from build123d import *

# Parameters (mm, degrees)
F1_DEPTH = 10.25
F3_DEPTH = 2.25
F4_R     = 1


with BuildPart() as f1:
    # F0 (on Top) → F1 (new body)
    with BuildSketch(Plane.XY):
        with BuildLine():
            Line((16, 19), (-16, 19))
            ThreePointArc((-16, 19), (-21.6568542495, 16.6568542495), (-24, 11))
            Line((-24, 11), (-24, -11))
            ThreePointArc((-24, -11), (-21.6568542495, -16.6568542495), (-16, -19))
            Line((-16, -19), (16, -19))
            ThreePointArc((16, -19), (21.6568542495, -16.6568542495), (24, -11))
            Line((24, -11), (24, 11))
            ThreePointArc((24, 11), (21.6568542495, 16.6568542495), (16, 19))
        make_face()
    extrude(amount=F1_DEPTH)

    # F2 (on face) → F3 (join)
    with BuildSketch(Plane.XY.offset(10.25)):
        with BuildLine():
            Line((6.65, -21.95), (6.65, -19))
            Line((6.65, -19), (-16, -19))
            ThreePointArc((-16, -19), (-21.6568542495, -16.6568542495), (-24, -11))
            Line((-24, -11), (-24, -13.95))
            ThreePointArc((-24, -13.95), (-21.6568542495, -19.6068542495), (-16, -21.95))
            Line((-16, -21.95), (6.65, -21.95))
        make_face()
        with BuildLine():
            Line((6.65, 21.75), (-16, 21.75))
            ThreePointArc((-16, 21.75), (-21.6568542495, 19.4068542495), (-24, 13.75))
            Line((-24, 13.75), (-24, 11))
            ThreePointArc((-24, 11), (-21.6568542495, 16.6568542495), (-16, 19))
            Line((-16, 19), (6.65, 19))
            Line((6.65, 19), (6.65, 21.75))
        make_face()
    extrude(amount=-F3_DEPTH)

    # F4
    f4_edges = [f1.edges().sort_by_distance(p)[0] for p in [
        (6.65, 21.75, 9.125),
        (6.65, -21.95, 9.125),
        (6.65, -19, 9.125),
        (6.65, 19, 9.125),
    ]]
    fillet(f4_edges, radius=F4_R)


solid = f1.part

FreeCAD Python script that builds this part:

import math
import FreeCAD as App
import Part
import Sketcher
from FreeCAD import Vector


def edges_at(feature, points):
    """Names of the edges that pass closest to the given points."""
    edges = feature.Shape.Edges
    near = lambda p: min(range(len(edges)), key=lambda i: edges[i].distToShape(Part.Vertex(*p))[0])
    return sorted({f"Edge{near(p) + 1}" for p in points})

doc = App.newDocument("Part")
body = doc.addObject("PartDesign::Body", "Body")

sketch1 = doc.addObject("Sketcher::SketchObject", "Sketch")
body.addObject(sketch1)
sketch1.AttachmentSupport = (doc.XY_Plane, [""])
sketch1.MapMode = "FlatFace"
sketch1.addGeometry(Part.LineSegment(Vector(16, 19, 0), Vector(-16, 19, 0)), False)
sketch1.addGeometry(Part.ArcOfCircle(Part.Circle(Vector(-16, 11, 0), Vector(0, 0, 1), 8), math.radians(90), math.radians(180)), False)
sketch1.addGeometry(Part.LineSegment(Vector(-24, 11, 0), Vector(-24, -11, 0)), False)
sketch1.addGeometry(Part.ArcOfCircle(Part.Circle(Vector(-16, -11, 0), Vector(0, 0, 1), 8), math.radians(180), math.radians(270)), False)
sketch1.addGeometry(Part.LineSegment(Vector(-16, -19, 0), Vector(16, -19, 0)), False)
sketch1.addGeometry(Part.ArcOfCircle(Part.Circle(Vector(16, -11, 0), Vector(0, 0, 1), 8), math.radians(-90), math.radians(0)), False)
sketch1.addGeometry(Part.LineSegment(Vector(24, -11, 0), Vector(24, 11, 0)), False)
sketch1.addGeometry(Part.ArcOfCircle(Part.Circle(Vector(16, 11, 0), Vector(0, 0, 1), 8), math.radians(0), math.radians(90)), False)
sketch1.addConstraint(Sketcher.Constraint("Tangent", 0, 2, 1, 1))
sketch1.addConstraint(Sketcher.Constraint("Tangent", 1, 2, 2, 1))
sketch1.addConstraint(Sketcher.Constraint("Tangent", 2, 2, 3, 1))
sketch1.addConstraint(Sketcher.Constraint("Tangent", 3, 2, 4, 1))
sketch1.addConstraint(Sketcher.Constraint("Tangent", 4, 2, 5, 1))
sketch1.addConstraint(Sketcher.Constraint("Tangent", 5, 2, 6, 1))
sketch1.addConstraint(Sketcher.Constraint("Tangent", 6, 2, 7, 1))
sketch1.addConstraint(Sketcher.Constraint("Tangent", 7, 2, 0, 1))
sketch1.addConstraint(Sketcher.Constraint("Horizontal", 0))
sketch1.addConstraint(Sketcher.Constraint("Vertical", 2))
sketch1.addConstraint(Sketcher.Constraint("Horizontal", 4))
sketch1.addConstraint(Sketcher.Constraint("Vertical", 6))
sketch1.addConstraint(Sketcher.Constraint("Equal", 1, 3))
sketch1.addConstraint(Sketcher.Constraint("Equal", 3, 5))
sketch1.addConstraint(Sketcher.Constraint("Equal", 5, 7))
sketch1.addConstraint(Sketcher.Constraint("Symmetric", 1, 3, 5, 3, -1, 1))
sketch1.addConstraint(Sketcher.Constraint("Radius", 1, 8.0))
sketch1.addConstraint(Sketcher.Constraint("DistanceX", 0, 2, 0, 1, 32.0))
sketch1.addConstraint(Sketcher.Constraint("DistanceY", 2, 2, 2, 1, 22.0))
pad1 = doc.addObject("PartDesign::Pad", "Pad")
body.addObject(pad1)
pad1.Profile = sketch1
pad1.Length = 10.25

sketch2 = doc.addObject("Sketcher::SketchObject", "Sketch001")
body.addObject(sketch2)
sketch2.AttachmentSupport = (doc.XY_Plane, [""])
sketch2.MapMode = "FlatFace"
sketch2.AttachmentOffset = App.Placement(Vector(0, 0, 10.25), App.Rotation())
sketch2.addGeometry(Part.LineSegment(Vector(6.7, -21.9, 0), Vector(6.7, -19, 0)), False)
sketch2.addGeometry(Part.LineSegment(Vector(6.7, -19, 0), Vector(-16, -19, 0)), False)
sketch2.addGeometry(Part.ArcOfCircle(Part.Circle(Vector(-16, -11, 0), Vector(0, 0, 1), 8), math.radians(180), math.radians(270)), False)
sketch2.addGeometry(Part.LineSegment(Vector(-24, -11, 0), Vector(-24, -13.9, 0)), False)
sketch2.addGeometry(Part.ArcOfCircle(Part.Circle(Vector(-16, -13.9, 0), Vector(0, 0, 1), 8), math.radians(180), math.radians(270)), False)
sketch2.addGeometry(Part.LineSegment(Vector(-16, -21.9, 0), Vector(6.7, -21.9, 0)), False)
sketch2.addGeometry(Part.LineSegment(Vector(6.7, 21.8, 0), Vector(-16, 21.8, 0)), False)
sketch2.addGeometry(Part.ArcOfCircle(Part.Circle(Vector(-16, 13.8, 0), Vector(0, 0, 1), 8), math.radians(90), math.radians(180)), False)
sketch2.addGeometry(Part.LineSegment(Vector(-24, 13.8, 0), Vector(-24, 11, 0)), False)
sketch2.addGeometry(Part.ArcOfCircle(Part.Circle(Vector(-16, 11, 0), Vector(0, 0, 1), 8), math.radians(90), math.radians(180)), False)
sketch2.addGeometry(Part.LineSegment(Vector(-16, 19, 0), Vector(6.7, 19, 0)), False)
sketch2.addGeometry(Part.LineSegment(Vector(6.7, 19, 0), Vector(6.7, 21.8, 0)), False)
sketch2.addConstraint(Sketcher.Constraint("Coincident", 0, 2, 1, 1))
sketch2.addConstraint(Sketcher.Constraint("Tangent", 1, 2, 2, 2))
sketch2.addConstraint(Sketcher.Constraint("Tangent", 2, 1, 3, 1))
sketch2.addConstraint(Sketcher.Constraint("Tangent", 3, 2, 4, 1))
sketch2.addConstraint(Sketcher.Constraint("Tangent", 4, 2, 5, 1))
sketch2.addConstraint(Sketcher.Constraint("Coincident", 5, 2, 0, 1))
sketch2.addConstraint(Sketcher.Constraint("Tangent", 6, 2, 7, 1))
sketch2.addConstraint(Sketcher.Constraint("Tangent", 7, 2, 8, 1))
sketch2.addConstraint(Sketcher.Constraint("Tangent", 8, 2, 9, 2))
sketch2.addConstraint(Sketcher.Constraint("Tangent", 9, 1, 10, 1))
sketch2.addConstraint(Sketcher.Constraint("Coincident", 10, 2, 11, 1))
sketch2.addConstraint(Sketcher.Constraint("Coincident", 11, 2, 6, 1))
sketch2.addConstraint(Sketcher.Constraint("Vertical", 0))
sketch2.addConstraint(Sketcher.Constraint("Horizontal", 1))
sketch2.addConstraint(Sketcher.Constraint("Vertical", 3))
sketch2.addConstraint(Sketcher.Constraint("Horizontal", 5))
sketch2.addConstraint(Sketcher.Constraint("Horizontal", 6))
sketch2.addConstraint(Sketcher.Constraint("Vertical", 8))
sketch2.addConstraint(Sketcher.Constraint("Horizontal", 10))
sketch2.addConstraint(Sketcher.Constraint("Vertical", 11))
sketch2.addConstraint(Sketcher.Constraint("Equal", 2, 4))
sketch2.addConstraint(Sketcher.Constraint("Equal", 4, 7))
sketch2.addConstraint(Sketcher.Constraint("Equal", 7, 9))
sketch2.addConstraint(Sketcher.Constraint("Symmetric", 2, 3, 9, 3, -1))
sketch2.addConstraint(Sketcher.Constraint("Vertical", 5, 2, 10, 2))
sketch2.addConstraint(Sketcher.Constraint("Radius", 2, 8.0))
sketch2.addConstraint(Sketcher.Constraint("DistanceX", 2, 3, -1, 1, 16.0))
sketch2.addConstraint(Sketcher.Constraint("DistanceY", 2, 3, -1, 1, 11.0))
sketch2.addConstraint(Sketcher.Constraint("DistanceX", 1, 2, 1, 1, 22.65))
sketch2.addConstraint(Sketcher.Constraint("DistanceY", 0, 1, 0, 2, 2.95))
sketch2.addConstraint(Sketcher.Constraint("DistanceY", 8, 2, 8, 1, 2.75))
pad2 = doc.addObject("PartDesign::Pad", "Pad001")
body.addObject(pad2)
pad2.Profile = sketch2
pad2.Length = 2.25
pad2.Reversed = True
doc.recompute()

fillet = doc.addObject("PartDesign::Fillet", "Fillet")
body.addObject(fillet)
fillet.Base = (pad2, edges_at(pad2, [
    (6.65, 21.75, 9.125),
    (6.65, -21.95, 9.125),
    (6.65, -19, 9.125),
    (6.65, 19, 9.125),
]))
fillet.Radius = 1

doc.recompute()
